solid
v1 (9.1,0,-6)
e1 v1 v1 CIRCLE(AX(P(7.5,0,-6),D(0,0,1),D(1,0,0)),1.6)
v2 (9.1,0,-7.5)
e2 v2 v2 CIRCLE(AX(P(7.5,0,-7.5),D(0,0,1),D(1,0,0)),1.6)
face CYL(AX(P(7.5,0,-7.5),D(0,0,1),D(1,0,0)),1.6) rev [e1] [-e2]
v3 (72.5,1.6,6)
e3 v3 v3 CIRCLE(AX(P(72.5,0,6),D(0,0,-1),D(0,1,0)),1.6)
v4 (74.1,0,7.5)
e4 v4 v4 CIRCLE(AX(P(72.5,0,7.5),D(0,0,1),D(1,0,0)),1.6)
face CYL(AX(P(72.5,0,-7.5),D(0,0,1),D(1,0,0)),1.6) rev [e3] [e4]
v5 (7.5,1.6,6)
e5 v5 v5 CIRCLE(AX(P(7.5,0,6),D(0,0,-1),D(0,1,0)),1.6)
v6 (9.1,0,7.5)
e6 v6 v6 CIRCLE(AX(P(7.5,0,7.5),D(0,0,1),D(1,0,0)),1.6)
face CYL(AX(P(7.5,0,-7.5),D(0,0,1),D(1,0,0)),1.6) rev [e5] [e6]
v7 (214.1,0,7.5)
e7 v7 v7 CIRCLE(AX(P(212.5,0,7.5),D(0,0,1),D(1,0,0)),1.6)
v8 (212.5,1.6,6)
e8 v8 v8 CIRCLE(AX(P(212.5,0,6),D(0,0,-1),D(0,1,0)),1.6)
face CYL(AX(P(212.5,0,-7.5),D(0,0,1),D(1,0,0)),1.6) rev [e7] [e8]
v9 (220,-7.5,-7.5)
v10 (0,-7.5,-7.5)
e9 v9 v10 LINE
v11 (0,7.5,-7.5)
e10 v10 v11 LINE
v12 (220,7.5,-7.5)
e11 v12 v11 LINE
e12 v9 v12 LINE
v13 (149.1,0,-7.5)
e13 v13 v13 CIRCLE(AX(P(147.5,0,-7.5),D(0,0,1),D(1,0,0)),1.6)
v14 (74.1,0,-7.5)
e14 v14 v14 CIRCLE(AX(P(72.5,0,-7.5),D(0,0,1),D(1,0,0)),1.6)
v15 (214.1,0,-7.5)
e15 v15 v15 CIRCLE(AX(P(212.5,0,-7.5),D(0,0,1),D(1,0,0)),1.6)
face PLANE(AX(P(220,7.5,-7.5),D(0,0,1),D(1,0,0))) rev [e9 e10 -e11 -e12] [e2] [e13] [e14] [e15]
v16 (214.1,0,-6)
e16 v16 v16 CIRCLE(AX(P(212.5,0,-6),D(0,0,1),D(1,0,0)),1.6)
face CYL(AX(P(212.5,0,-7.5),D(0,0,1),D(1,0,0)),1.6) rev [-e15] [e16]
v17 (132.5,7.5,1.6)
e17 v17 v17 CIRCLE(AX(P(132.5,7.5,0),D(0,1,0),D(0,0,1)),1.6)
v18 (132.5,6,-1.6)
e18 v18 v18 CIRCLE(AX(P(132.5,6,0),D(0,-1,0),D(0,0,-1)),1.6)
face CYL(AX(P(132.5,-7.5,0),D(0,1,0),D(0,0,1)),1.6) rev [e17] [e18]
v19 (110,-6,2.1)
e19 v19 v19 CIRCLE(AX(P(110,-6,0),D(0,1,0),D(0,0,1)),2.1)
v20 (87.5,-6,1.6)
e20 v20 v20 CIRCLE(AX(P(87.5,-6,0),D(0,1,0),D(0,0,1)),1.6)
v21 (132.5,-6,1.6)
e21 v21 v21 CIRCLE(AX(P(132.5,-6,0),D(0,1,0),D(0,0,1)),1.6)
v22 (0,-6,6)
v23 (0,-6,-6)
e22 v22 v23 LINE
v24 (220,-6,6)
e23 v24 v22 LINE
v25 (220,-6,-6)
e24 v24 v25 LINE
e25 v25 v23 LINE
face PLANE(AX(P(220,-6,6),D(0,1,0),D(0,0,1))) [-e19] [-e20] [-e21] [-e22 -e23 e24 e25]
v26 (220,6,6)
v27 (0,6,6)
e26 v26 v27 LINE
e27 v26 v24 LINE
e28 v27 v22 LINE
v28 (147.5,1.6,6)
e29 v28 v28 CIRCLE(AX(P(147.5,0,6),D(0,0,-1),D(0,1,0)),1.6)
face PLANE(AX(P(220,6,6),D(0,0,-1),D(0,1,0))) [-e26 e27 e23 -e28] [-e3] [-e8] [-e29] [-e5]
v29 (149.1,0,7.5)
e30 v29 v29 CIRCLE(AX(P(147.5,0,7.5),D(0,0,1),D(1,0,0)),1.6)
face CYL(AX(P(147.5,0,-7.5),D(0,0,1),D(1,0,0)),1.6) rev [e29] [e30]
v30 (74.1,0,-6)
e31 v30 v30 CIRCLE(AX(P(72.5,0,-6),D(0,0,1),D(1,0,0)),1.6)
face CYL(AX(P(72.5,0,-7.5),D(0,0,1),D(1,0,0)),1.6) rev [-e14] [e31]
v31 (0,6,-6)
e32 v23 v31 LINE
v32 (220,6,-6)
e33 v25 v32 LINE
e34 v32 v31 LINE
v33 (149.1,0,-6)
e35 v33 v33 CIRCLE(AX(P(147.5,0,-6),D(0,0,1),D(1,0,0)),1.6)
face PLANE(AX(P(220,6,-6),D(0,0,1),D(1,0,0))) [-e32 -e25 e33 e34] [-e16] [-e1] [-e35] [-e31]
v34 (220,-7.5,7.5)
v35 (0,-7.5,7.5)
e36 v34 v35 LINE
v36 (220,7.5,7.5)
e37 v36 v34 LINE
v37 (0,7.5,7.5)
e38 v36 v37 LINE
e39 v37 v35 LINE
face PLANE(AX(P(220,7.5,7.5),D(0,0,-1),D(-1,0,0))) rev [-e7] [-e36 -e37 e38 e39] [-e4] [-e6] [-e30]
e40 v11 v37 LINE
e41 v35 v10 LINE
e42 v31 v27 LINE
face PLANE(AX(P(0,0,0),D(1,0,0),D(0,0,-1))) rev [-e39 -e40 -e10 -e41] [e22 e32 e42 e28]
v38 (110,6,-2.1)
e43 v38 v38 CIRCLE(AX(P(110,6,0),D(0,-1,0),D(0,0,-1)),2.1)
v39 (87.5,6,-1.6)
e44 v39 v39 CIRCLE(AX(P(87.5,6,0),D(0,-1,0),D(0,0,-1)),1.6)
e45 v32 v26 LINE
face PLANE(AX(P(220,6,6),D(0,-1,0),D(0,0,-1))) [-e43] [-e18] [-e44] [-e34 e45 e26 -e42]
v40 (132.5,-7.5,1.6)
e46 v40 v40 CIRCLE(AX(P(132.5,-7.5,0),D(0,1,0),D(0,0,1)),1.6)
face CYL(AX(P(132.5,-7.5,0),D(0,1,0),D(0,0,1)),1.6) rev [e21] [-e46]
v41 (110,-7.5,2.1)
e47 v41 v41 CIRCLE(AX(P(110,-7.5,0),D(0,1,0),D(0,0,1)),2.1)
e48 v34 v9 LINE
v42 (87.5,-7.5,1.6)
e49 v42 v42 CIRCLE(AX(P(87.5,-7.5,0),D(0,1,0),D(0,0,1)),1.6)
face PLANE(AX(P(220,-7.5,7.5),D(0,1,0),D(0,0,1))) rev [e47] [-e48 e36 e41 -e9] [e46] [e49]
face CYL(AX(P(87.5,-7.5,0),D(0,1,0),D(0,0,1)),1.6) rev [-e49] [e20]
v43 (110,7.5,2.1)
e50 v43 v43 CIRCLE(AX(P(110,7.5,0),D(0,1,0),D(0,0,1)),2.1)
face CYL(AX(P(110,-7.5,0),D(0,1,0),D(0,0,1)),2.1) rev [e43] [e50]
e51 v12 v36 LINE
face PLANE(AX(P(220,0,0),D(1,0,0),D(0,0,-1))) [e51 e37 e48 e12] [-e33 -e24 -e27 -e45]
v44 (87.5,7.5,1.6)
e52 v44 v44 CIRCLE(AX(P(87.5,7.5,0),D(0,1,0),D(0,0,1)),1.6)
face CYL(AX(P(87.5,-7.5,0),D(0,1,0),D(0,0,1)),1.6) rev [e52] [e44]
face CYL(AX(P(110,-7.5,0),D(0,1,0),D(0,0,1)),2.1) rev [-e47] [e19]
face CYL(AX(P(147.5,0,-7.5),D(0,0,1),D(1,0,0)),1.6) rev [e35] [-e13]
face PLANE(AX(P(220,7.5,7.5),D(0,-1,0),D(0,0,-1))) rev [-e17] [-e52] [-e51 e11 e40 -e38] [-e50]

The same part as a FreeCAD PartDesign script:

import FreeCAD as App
import Part
import Sketcher

doc = App.newDocument("Part")
params = doc.addObject("Spreadsheet::Sheet", "Params")
for row, (alias, value) in enumerate([
    ("sketch1_width", "15 mm"),
    ("sketch1_width2", "12 mm"),
    ("pad1_length", "220 mm"),
    ("sketch2_diameter", "3.2 mm"),
    ("sketch3_diameter", "4.2 mm"),
    ("sketch3_diameter2", "3.2 mm"),
], start=1):
    params.set(f"A{row}", alias)
    params.set(f"B{row}", "=" + value)
    params.setAlias(f"B{row}", alias)

body = doc.addObject("PartDesign::Body", "Body")

sketch1 = body.newObject("Sketcher::SketchObject", "Sketch")
sketch1.AttachmentSupport = (doc.getObject("YZ_Plane"), [""])
sketch1.MapMode = "FlatFace"
sketch1.addGeometry([
    Part.LineSegment(App.Vector(8, 8, 0), App.Vector(-8, 8, 0)),
    Part.LineSegment(App.Vector(-8, 8, 0), App.Vector(-8, -8, 0)),
    Part.LineSegment(App.Vector(-8, -8, 0), App.Vector(8, -8, 0)),
    Part.LineSegment(App.Vector(8, -8, 0), App.Vector(8, 8, 0)),
    Part.LineSegment(App.Vector(-6, -6, 0), App.Vector(-6, 6, 0)),
    Part.LineSegment(App.Vector(-6, 6, 0), App.Vector(6, 6, 0)),
    Part.LineSegment(App.Vector(6, 6, 0), App.Vector(6, -6, 0)),
    Part.LineSegment(App.Vector(6, -6, 0), App.Vector(-6, -6, 0)),
], False)
sketch1.addConstraint([
    Sketcher.Constraint("Coincident", 0, 2, 1, 1),
    Sketcher.Constraint("Coincident", 1, 2, 2, 1),
    Sketcher.Constraint("Coincident", 2, 2, 3, 1),
    Sketcher.Constraint("Coincident", 3, 2, 0, 1),
    Sketcher.Constraint("Coincident", 4, 2, 5, 1),
    Sketcher.Constraint("Coincident", 5, 2, 6, 1),
    Sketcher.Constraint("Coincident", 6, 2, 7, 1),
    Sketcher.Constraint("Coincident", 7, 2, 4, 1),
    Sketcher.Constraint("Horizontal", 0),
    Sketcher.Constraint("Vertical", 1),
    Sketcher.Constraint("Horizontal", 2),
    Sketcher.Constraint("Vertical", 3),
    Sketcher.Constraint("Vertical", 4),
    Sketcher.Constraint("Horizontal", 5),
    Sketcher.Constraint("Vertical", 6),
    Sketcher.Constraint("Horizontal", 7),
    Sketcher.Constraint("Symmetric", 0, 2, 2, 2, -1, 1),
    Sketcher.Constraint("Symmetric", 4, 2, 6, 2, -1, 1),
    Sketcher.Constraint("Equal", 2, 1),
    Sketcher.Constraint("Equal", 7, 4),
    Sketcher.Constraint("DistanceX", 0, 2, 0, 1, 15.0),
    Sketcher.Constraint("DistanceX", 5, 1, 5, 2, 12.0),
])
sketch1.setExpression("Constraints[20]", "Params.sketch1_width")
sketch1.setExpression("Constraints[21]", "Params.sketch1_width2")
pad1 = body.newObject("PartDesign::Pad", "Pad")
pad1.Profile = sketch1
pad1.setExpression("Length", "Params.pad1_length")

sketch2 = body.newObject("Sketcher::SketchObject", "Sketch001")
sketch2.AttachmentSupport = (doc.getObject("XY_Plane"), [""])
sketch2.MapMode = "FlatFace"
sketch2.AttachmentOffset = App.Placement(App.Vector(0, 0, 7.5), App.Rotation())
sketch2.addGeometry([
    Part.Circle(App.Vector(7.5, 0, 0), App.Vector(0, 0, 1), 1.6),
    Part.Circle(App.Vector(212.5, 0, 0), App.Vector(0, 0, 1), 1.6),
    Part.Circle(App.Vector(72.5, 0, 0), App.Vector(0, 0, 1), 1.6),
    Part.Circle(App.Vector(147.5, 0, 0), App.Vector(0, 0, 1), 1.6),
], False)
sketch2.addConstraint([
    Sketcher.Constraint("Equal", 0, 1),
    Sketcher.Constraint("Equal", 1, 2),
    Sketcher.Constraint("Equal", 2, 3),
    Sketcher.Constraint("PointOnObject", 0, 3, -1),
    Sketcher.Constraint("PointOnObject", 1, 3, -1),
    Sketcher.Constraint("PointOnObject", 2, 3, -1),
    Sketcher.Constraint("PointOnObject", 3, 3, -1),
    Sketcher.Constraint("Diameter", 0, 3.2),
    Sketcher.Constraint("DistanceX", 0, 3, 1, 3, 205.0),
    Sketcher.Constraint("DistanceX", 0, 3, 2, 3, 65.0),
    Sketcher.Constraint("DistanceX", 3, 3, 1, 3, 65.0),
    Sketcher.Constraint("DistanceX", -1, 1, 0, 3, 7.5),
])
sketch2.setExpression("Constraints[7]", "Params.sketch2_diameter")
pocket1 = body.newObject("PartDesign::Pocket", "Pocket")
pocket1.Profile = sketch2
pocket1.Type = "ThroughAll"

sketch3 = body.newObject("Sketcher::SketchObject", "Sketch002")
sketch3.AttachmentSupport = (doc.getObject("XZ_Plane"), [""])
sketch3.MapMode = "FlatFace"
sketch3.AttachmentOffset = App.Placement(App.Vector(0, 0, -7.5), App.Rotation())
sketch3.addGeometry([
    Part.Circle(App.Vector(110, 0, 0), App.Vector(0, 0, 1), 2.1),
    Part.Circle(App.Vector(132.5, 0, 0), App.Vector(0, 0, 1), 1.6),
    Part.Circle(App.Vector(87.5, 0, 0), App.Vector(0, 0, 1), 1.6),
], False)
sketch3.addConstraint([
    Sketcher.Constraint("Equal", 1, 2),
    Sketcher.Constraint("PointOnObject", 0, 3, -1),
    Sketcher.Constraint("PointOnObject", 1, 3, -1),
    Sketcher.Constraint("PointOnObject", 2, 3, -1),
    Sketcher.Constraint("Diameter", 0, 4.2),
    Sketcher.Constraint("Diameter", 1, 3.2),
    Sketcher.Constraint("DistanceX", -1, 1, 0, 3, 110.0),
    Sketcher.Constraint("DistanceX", 2, 3, 1, 3, 45.0),
    Sketcher.Constraint("DistanceX", -1, 1, 1, 3, 132.5),
])
sketch3.setExpression("Constraints[4]", "Params.sketch3_diameter")
sketch3.setExpression("Constraints[5]", "Params.sketch3_diameter2")
pocket2 = body.newObject("PartDesign::Pocket", "Pocket001")
pocket2.Profile = sketch3
pocket2.Type = "ThroughAll"
pocket2.Reversed = True

doc.recompute()
